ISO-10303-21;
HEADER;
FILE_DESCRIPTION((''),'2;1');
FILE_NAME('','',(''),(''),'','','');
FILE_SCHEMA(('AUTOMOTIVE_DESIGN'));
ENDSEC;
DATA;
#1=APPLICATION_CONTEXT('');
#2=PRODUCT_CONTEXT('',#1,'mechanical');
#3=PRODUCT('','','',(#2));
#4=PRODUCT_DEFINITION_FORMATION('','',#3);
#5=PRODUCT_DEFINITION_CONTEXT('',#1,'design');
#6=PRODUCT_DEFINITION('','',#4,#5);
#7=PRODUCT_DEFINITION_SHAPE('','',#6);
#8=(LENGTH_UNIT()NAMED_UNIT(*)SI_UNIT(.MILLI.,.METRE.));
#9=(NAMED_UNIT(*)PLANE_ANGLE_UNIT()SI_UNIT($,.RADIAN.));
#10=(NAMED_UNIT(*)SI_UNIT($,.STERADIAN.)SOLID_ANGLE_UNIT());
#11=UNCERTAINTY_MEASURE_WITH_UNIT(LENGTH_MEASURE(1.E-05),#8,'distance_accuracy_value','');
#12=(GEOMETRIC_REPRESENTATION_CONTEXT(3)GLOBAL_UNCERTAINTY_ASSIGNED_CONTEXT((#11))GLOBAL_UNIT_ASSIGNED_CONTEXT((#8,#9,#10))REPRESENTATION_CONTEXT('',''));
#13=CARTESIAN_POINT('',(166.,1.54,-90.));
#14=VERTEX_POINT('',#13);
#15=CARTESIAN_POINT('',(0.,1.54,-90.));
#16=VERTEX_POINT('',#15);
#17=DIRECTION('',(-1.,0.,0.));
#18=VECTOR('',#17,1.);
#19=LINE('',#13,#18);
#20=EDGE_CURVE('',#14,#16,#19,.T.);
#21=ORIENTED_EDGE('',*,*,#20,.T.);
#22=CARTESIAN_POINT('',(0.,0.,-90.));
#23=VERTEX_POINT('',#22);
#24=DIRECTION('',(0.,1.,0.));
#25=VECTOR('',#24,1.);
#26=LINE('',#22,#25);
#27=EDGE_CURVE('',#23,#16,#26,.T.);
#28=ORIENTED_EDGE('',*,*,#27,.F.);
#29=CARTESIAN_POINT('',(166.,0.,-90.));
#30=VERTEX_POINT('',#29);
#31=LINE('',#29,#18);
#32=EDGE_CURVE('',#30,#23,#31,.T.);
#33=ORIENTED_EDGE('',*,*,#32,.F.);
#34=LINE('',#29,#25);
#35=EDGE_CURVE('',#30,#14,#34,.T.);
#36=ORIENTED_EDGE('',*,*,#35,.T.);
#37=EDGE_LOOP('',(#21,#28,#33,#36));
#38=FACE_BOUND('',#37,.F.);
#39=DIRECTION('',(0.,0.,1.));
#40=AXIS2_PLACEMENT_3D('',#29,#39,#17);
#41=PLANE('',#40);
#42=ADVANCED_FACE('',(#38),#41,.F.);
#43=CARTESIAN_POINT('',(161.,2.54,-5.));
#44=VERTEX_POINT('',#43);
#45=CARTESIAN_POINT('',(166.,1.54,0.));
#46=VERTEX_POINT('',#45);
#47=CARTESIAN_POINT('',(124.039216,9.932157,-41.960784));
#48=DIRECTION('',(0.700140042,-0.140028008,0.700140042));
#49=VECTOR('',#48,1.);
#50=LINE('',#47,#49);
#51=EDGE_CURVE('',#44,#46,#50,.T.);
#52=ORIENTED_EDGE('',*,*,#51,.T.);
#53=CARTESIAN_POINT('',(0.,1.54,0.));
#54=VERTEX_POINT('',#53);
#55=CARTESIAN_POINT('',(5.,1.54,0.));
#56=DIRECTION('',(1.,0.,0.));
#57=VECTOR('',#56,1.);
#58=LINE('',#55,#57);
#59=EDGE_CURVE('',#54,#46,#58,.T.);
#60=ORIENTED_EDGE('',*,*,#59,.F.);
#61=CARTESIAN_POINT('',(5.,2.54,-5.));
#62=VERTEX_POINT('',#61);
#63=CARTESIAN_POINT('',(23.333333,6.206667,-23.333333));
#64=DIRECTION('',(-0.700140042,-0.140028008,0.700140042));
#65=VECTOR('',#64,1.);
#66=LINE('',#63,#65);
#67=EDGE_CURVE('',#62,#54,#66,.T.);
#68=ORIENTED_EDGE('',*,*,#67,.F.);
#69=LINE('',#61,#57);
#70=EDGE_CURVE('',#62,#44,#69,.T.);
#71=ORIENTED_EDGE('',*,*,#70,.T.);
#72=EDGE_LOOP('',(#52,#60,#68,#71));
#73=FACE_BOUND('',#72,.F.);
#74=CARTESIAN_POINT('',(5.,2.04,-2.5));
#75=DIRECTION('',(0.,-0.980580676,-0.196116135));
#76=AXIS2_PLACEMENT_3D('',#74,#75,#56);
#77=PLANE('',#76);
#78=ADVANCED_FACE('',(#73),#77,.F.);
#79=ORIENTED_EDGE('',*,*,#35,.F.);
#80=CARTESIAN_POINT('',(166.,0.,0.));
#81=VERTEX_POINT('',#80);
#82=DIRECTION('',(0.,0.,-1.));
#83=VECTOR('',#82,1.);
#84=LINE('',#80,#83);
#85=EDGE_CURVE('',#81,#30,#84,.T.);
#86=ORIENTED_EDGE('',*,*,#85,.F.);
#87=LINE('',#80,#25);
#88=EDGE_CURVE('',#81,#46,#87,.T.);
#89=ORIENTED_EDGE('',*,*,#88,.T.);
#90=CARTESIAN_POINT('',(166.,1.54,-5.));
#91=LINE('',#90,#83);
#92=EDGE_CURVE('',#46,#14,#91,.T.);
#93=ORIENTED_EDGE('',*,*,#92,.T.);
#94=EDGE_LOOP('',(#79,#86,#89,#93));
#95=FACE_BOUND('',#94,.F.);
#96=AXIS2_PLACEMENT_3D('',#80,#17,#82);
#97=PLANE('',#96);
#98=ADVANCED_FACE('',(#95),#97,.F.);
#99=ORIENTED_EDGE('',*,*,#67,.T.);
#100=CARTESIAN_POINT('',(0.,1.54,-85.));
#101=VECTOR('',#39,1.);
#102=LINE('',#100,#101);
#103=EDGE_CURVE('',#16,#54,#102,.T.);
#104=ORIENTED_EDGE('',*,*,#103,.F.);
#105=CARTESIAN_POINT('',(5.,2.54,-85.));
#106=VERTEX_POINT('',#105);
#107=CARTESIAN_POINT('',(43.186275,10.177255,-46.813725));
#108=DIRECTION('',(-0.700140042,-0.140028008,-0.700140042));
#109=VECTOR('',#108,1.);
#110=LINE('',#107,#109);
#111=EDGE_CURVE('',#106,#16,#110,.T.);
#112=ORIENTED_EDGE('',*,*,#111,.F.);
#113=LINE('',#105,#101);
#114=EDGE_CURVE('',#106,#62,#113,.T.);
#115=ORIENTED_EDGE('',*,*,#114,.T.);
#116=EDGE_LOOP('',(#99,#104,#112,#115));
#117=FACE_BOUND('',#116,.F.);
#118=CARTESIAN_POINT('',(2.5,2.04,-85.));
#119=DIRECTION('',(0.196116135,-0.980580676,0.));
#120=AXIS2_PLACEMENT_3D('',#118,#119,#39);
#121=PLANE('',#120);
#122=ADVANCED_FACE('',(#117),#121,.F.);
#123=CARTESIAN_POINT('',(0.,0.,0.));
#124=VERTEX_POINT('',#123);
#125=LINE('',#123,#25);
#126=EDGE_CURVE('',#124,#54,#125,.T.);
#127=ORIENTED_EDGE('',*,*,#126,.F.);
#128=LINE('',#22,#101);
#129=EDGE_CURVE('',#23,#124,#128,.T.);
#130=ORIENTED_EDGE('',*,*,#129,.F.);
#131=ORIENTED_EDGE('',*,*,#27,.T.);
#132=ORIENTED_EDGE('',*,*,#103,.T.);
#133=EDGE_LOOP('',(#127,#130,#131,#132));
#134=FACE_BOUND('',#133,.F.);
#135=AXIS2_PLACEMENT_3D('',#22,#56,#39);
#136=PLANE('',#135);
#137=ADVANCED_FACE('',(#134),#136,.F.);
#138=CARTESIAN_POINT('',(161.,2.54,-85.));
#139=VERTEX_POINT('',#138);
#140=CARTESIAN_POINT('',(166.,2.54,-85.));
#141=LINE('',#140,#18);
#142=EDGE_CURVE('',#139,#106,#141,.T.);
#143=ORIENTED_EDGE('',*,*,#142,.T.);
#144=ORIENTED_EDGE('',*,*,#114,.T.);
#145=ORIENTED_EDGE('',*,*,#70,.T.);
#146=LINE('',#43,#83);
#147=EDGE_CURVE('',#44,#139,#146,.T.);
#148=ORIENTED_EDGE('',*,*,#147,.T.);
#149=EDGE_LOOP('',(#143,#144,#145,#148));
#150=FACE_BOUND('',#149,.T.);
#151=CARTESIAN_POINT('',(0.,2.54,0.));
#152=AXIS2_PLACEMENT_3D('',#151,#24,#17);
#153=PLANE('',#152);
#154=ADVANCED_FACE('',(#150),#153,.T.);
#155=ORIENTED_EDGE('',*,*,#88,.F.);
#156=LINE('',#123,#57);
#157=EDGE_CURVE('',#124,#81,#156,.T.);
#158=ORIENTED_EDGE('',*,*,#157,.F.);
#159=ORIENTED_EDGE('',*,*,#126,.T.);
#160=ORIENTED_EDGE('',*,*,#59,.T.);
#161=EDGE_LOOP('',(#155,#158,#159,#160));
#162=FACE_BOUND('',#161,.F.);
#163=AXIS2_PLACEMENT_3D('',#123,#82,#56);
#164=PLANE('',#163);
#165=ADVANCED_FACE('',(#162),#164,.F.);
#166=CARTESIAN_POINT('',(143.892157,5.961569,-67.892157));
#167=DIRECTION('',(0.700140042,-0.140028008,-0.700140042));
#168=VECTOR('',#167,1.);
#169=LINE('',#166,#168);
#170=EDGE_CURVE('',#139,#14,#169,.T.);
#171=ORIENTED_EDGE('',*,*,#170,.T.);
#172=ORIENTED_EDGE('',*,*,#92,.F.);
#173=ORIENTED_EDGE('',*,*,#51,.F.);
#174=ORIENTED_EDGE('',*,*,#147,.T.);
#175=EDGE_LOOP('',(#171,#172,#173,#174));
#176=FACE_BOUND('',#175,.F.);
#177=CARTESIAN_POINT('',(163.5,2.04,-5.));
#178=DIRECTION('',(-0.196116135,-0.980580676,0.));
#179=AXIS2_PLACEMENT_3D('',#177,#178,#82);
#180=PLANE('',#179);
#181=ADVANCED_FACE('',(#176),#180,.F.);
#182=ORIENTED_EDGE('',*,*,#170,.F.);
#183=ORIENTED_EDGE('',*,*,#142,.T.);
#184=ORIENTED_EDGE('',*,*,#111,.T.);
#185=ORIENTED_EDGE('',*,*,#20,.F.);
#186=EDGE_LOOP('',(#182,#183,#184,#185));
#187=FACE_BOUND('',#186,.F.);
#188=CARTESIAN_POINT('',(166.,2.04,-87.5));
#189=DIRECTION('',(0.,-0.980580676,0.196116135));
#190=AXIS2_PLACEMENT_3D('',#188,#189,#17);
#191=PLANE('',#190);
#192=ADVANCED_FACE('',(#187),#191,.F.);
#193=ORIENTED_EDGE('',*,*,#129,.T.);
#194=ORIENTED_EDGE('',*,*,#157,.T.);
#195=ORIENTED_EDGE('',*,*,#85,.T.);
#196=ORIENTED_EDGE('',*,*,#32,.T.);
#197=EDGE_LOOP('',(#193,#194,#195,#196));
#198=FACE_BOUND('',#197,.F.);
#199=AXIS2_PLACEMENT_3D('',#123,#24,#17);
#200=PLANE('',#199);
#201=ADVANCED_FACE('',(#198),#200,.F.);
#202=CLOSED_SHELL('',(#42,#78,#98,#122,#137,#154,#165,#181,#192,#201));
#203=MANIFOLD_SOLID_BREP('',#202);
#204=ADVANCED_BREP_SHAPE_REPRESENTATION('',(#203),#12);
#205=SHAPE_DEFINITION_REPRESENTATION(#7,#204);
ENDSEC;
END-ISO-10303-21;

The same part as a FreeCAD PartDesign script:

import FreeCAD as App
import Part
import Sketcher
from FreeCAD import Vector
Q = App.Units.Quantity


def edges_at(feature, points):
    """Names of the edges that pass closest to the given points."""
    edges = feature.Shape.Edges
    near = lambda p: min(range(len(edges)), key=lambda i: edges[i].distToShape(Part.Vertex(*p))[0])
    return sorted({f"Edge{near(p) + 1}" for p in points})


def add_polygon(sketch, points):
    """Adds a closed chain of lines whose ends are joined by coincident constraints."""
    first, n = sketch.GeometryCount, len(points)
    for a, b in zip(points, points[1:] + points[:1]):
        sketch.addGeometry(Part.LineSegment(App.Vector(*a, 0), App.Vector(*b, 0)), False)
    for i in range(n):
        sketch.addConstraint(Sketcher.Constraint("Coincident", first + i, 2, first + (i + 1) % n, 1))

doc = App.newDocument("Part")
params = doc.addObject("Spreadsheet::Sheet", "Params")
for row, (alias, value) in enumerate([
    ("sketch1_width", "166 mm"),
    ("sketch1_height", "90 mm"),
    ("pad1_length", "2.54 mm"),
    ("chamfer_size", "5 mm"),
    ("chamfer_size2", "1 mm"),
    ("chamfer2_size", "5 mm"),
    ("chamfer2_size2", "1 mm"),
    ("chamfer3_size", "5 mm"),
    ("chamfer3_size2", "1 mm"),
    ("chamfer4_size", "5 mm"),
    ("chamfer4_size2", "1 mm"),
], start=1):
    params.set(f"A{row}", alias)
    params.set(f"B{row}", "=" + value)
    params.setAlias(f"B{row}", alias)

body = doc.addObject("PartDesign::Body", "Body")

sketch1 = body.newObject("Sketcher::SketchObject", "Sketch")
sketch1.AttachmentSupport = (doc.getObject("XZ_Plane"), [""])
sketch1.MapMode = "FlatFace"
add_polygon(sketch1, [(0, -90), (0, 0), (166, 0), (166, -90)])
sketch1.addConstraint(Sketcher.Constraint("Vertical", 0))
sketch1.addConstraint(Sketcher.Constraint("Horizontal", 1))
sketch1.addConstraint(Sketcher.Constraint("Vertical", 2))
sketch1.addConstraint(Sketcher.Constraint("Horizontal", 3))
sketch1.addConstraint(Sketcher.Constraint("Coincident", 0, 2, -1, 1))
sketch1.addConstraint(Sketcher.Constraint("DistanceX", 1, 1, 1, 2, Q("166 mm")))
sketch1.addConstraint(Sketcher.Constraint("DistanceY", 0, 1, 0, 2, Q("90 mm")))
sketch1.setExpression("Constraints[9]", "Params.sketch1_width")
sketch1.setExpression("Constraints[10]", "Params.sketch1_height")
pad1 = body.newObject("PartDesign::Pad", "Pad")
pad1.Profile = sketch1
pad1.setExpression("Length", "Params.pad1_length")
pad1.Reversed = True
doc.recompute()

chamfer = body.newObject("PartDesign::Chamfer", "Chamfer")
chamfer.Base = (pad1, edges_at(pad1, [(83, 2.54, -90)]))
chamfer.ChamferType = "Two distances"
chamfer.setExpression("Size", "Params.chamfer_size")
chamfer.setExpression("Size2", "Params.chamfer_size2")
chamfer.FlipDirection = True
doc.recompute()

chamfer2 = body.newObject("PartDesign::Chamfer", "Chamfer001")
chamfer2.Base = (chamfer, edges_at(chamfer, [(0, 2.54, -42.5)]))
chamfer2.ChamferType = "Two distances"
chamfer2.setExpression("Size", "Params.chamfer2_size")
chamfer2.setExpression("Size2", "Params.chamfer2_size2")
chamfer2.FlipDirection = True
doc.recompute()

chamfer3 = body.newObject("PartDesign::Chamfer", "Chamfer002")
chamfer3.Base = (chamfer2, edges_at(chamfer2, [(85.5, 2.54, 0)]))
chamfer3.ChamferType = "Two distances"
chamfer3.setExpression("Size", "Params.chamfer3_size")
chamfer3.setExpression("Size2", "Params.chamfer3_size2")
chamfer3.FlipDirection = True
doc.recompute()

chamfer4 = body.newObject("PartDesign::Chamfer", "Chamfer003")
chamfer4.Base = (chamfer3, edges_at(chamfer3, [(166, 2.54, -45)]))
chamfer4.ChamferType = "Two distances"
chamfer4.setExpression("Size", "Params.chamfer4_size")
chamfer4.setExpression("Size2", "Params.chamfer4_size2")
chamfer4.FlipDirection = True

doc.recompute()
